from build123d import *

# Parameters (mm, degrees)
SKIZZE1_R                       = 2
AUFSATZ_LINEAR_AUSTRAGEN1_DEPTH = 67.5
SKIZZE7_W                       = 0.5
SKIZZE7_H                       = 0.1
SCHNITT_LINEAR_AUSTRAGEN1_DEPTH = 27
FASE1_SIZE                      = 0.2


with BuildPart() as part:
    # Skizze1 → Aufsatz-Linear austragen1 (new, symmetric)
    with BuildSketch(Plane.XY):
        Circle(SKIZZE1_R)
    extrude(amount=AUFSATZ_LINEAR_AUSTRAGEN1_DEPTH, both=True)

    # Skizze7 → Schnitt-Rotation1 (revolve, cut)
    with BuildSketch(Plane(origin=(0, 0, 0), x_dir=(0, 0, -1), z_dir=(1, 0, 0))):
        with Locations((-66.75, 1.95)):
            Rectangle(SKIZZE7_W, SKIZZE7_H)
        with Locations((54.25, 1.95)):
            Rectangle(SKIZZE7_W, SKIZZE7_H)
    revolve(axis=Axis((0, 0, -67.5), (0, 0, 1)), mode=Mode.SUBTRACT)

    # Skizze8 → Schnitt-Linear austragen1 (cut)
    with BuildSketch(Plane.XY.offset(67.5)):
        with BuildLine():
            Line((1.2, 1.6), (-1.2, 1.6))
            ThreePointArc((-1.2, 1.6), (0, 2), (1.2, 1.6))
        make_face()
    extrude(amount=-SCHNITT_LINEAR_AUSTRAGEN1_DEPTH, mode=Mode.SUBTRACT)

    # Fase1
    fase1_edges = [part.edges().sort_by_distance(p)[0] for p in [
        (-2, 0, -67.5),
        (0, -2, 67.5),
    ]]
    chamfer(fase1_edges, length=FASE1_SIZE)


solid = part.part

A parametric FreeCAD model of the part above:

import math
import FreeCAD as App
import Part
import Sketcher

V = App.Vector
Q = App.Units.Quantity


def edges_at(feature, points):
    """Names of the edges that pass closest to the given points."""
    edges = feature.Shape.Edges
    near = lambda p: min(range(len(edges)), key=lambda i: edges[i].distToShape(Part.Vertex(*p))[0])
    return sorted({f"Edge{near(p) + 1}" for p in points})

doc = App.newDocument("Part")
params = doc.addObject("Spreadsheet::Sheet", "Params")
for row, (alias, value) in enumerate([
    ("sketch1_diameter", "4 mm"),
    ("pad1_length", "135 mm"),
    ("sketch2_width", "0.1 mm"),
    ("sketch2_height", "0.5 mm"),
    ("groove_angle", "360 deg"),
    ("sketch3_radius", "2 mm"),
    ("sketch3_width", "2.4 mm"),
    ("pocket1_length", "27 mm"),
    ("chamfer_size", "0.2 mm"),
], start=1):
    params.set(f"A{row}", alias)
    params.set(f"B{row}", "=" + value)
    params.setAlias(f"B{row}", alias)

body = doc.addObject("PartDesign::Body", "Body")

# Sketch on XY plane
sketch1 = body.newObject("Sketcher::SketchObject", "Sketch")
sketch1.AttachmentSupport = (doc.getObject("XY_Plane"), [""])
sketch1.MapMode = "FlatFace"
sketch1.addGeometry(Part.Circle(V(0, 0, 0), V(0, 0, 1), 2), False)
sketch1.addConstraint(Sketcher.Constraint("Coincident", 0, 3, -1, 1))
sketch1.addConstraint(Sketcher.Constraint("Diameter", 0, Q("4 mm")))
sketch1.setExpression("Constraints[1]", "Params.sketch1_diameter")
pad1 = body.newObject("PartDesign::Pad", "Pad")
pad1.Profile = sketch1
pad1.setExpression("Length", "Params.pad1_length")
pad1.Midplane = True

# Sketch on YZ plane
sketch2 = body.newObject("Sketcher::SketchObject", "Sketch001")
sketch2.AttachmentSupport = (doc.getObject("YZ_Plane"), [""])
sketch2.MapMode = "FlatFace"
sketch2.addGeometry(Part.LineSegment(V(2, 67, 0), V(1.9, 67, 0)), False)
sketch2.addGeometry(Part.LineSegment(V(1.9, 67, 0), V(1.9, 66.5, 0)), False)
sketch2.addGeometry(Part.LineSegment(V(1.9, 66.5, 0), V(2, 66.5, 0)), False)
sketch2.addGeometry(Part.LineSegment(V(2, 66.5, 0), V(2, 67, 0)), False)
sketch2.addGeometry(Part.LineSegment(V(2, -54, 0), V(1.9, -54, 0)), False)
sketch2.addGeometry(Part.LineSegment(V(1.9, -54, 0), V(1.9, -54.5, 0)), False)
sketch2.addGeometry(Part.LineSegment(V(1.9, -54.5, 0), V(2, -54.5, 0)), False)
sketch2.addGeometry(Part.LineSegment(V(2, -54.5, 0), V(2, -54, 0)), False)
sketch2.addConstraint(Sketcher.Constraint("Coincident", 0, 2, 1, 1))
sketch2.addConstraint(Sketcher.Constraint("Coincident", 1, 2, 2, 1))
sketch2.addConstraint(Sketcher.Constraint("Coincident", 2, 2, 3, 1))
sketch2.addConstraint(Sketcher.Constraint("Coincident", 3, 2, 0, 1))
sketch2.addConstraint(Sketcher.Constraint("Coincident", 4, 2, 5, 1))
sketch2.addConstraint(Sketcher.Constraint("Coincident", 5, 2, 6, 1))
sketch2.addConstraint(Sketcher.Constraint("Coincident", 6, 2, 7, 1))
sketch2.addConstraint(Sketcher.Constraint("Coincident", 7, 2, 4, 1))
sketch2.addConstraint(Sketcher.Constraint("Horizontal", 0))
sketch2.addConstraint(Sketcher.Constraint("Vertical", 1))
sketch2.addConstraint(Sketcher.Constraint("Horizontal", 2))
sketch2.addConstraint(Sketcher.Constraint("Vertical", 3))
sketch2.addConstraint(Sketcher.Constraint("Horizontal", 4))
sketch2.addConstraint(Sketcher.Constraint("Vertical", 5))
sketch2.addConstraint(Sketcher.Constraint("Horizontal", 6))
sketch2.addConstraint(Sketcher.Constraint("Vertical", 7))
sketch2.addConstraint(Sketcher.Constraint("Vertical", 1, 2, 4, 2))
sketch2.addConstraint(Sketcher.Constraint("Vertical", 3, 2, 6, 2))
sketch2.addConstraint(Sketcher.Constraint("Equal", 3, 5))
sketch2.addConstraint(Sketcher.Constraint("DistanceX", 0, 2, 0, 1, Q("0.1 mm")))
sketch2.addConstraint(Sketcher.Constraint("DistanceY", 1, 2, 1, 1, Q("0.5 mm")))
sketch2.addConstraint(Sketcher.Constraint("DistanceY", -1, 1, 0, 2, Q("67 mm")))
sketch2.addConstraint(Sketcher.Constraint("DistanceX", -1, 1, 2, 2, Q("2 mm")))
sketch2.addConstraint(Sketcher.Constraint("DistanceY", 4, 2, -1, 1, Q("54 mm")))
sketch2.setExpression("Constraints[19]", "Params.sketch2_width")
sketch2.setExpression("Constraints[20]", "Params.sketch2_height")
groove = body.newObject("PartDesign::Groove", "Groove")
groove.Profile = sketch2
groove.ReferenceAxis = (sketch2, ["V_Axis"])
groove.setExpression("Angle", "Params.groove_angle")

# Sketch on XY plane
sketch3 = body.newObject("Sketcher::SketchObject", "Sketch002")
sketch3.AttachmentSupport = (doc.getObject("XY_Plane"), [""])
sketch3.MapMode = "FlatFace"
sketch3.AttachmentOffset = App.Placement(V(0, 0, 67.5), App.Rotation())
sketch3.addGeometry(Part.LineSegment(V(-1.2, 1.6, 0), V(1.2, 1.6, 0)), False)
sketch3.addGeometry(Part.ArcOfCircle(Part.Circle(V(0, 0, 0), V(0, 0, 1), 2), math.radians(53), math.radians(127)), False)
sketch3.addConstraint(Sketcher.Constraint("Coincident", 0, 1, 1, 2))
sketch3.addConstraint(Sketcher.Constraint("Coincident", 1, 1, 0, 2))
sketch3.addConstraint(Sketcher.Constraint("Horizontal", 0))
sketch3.addConstraint(Sketcher.Constraint("Coincident", 1, 3, -1, 1))
sketch3.addConstraint(Sketcher.Constraint("Radius", 1, Q("2 mm")))
sketch3.addConstraint(Sketcher.Constraint("DistanceX", 0, 1, 0, 2, Q("2.4 mm")))
sketch3.setExpression("Constraints[4]", "Params.sketch3_radius")
sketch3.setExpression("Constraints[5]", "Params.sketch3_width")
pocket1 = body.newObject("PartDesign::Pocket", "Pocket")
pocket1.Profile = sketch3
pocket1.setExpression("Length", "Params.pocket1_length")
doc.recompute()

chamfer = body.newObject("PartDesign::Chamfer", "Chamfer")
chamfer.Base = (pocket1, edges_at(pocket1, [(-2, 0, -67.5), (0, -2, 67.5)]))
chamfer.setExpression("Size", "Params.chamfer_size")

doc.recompute()
